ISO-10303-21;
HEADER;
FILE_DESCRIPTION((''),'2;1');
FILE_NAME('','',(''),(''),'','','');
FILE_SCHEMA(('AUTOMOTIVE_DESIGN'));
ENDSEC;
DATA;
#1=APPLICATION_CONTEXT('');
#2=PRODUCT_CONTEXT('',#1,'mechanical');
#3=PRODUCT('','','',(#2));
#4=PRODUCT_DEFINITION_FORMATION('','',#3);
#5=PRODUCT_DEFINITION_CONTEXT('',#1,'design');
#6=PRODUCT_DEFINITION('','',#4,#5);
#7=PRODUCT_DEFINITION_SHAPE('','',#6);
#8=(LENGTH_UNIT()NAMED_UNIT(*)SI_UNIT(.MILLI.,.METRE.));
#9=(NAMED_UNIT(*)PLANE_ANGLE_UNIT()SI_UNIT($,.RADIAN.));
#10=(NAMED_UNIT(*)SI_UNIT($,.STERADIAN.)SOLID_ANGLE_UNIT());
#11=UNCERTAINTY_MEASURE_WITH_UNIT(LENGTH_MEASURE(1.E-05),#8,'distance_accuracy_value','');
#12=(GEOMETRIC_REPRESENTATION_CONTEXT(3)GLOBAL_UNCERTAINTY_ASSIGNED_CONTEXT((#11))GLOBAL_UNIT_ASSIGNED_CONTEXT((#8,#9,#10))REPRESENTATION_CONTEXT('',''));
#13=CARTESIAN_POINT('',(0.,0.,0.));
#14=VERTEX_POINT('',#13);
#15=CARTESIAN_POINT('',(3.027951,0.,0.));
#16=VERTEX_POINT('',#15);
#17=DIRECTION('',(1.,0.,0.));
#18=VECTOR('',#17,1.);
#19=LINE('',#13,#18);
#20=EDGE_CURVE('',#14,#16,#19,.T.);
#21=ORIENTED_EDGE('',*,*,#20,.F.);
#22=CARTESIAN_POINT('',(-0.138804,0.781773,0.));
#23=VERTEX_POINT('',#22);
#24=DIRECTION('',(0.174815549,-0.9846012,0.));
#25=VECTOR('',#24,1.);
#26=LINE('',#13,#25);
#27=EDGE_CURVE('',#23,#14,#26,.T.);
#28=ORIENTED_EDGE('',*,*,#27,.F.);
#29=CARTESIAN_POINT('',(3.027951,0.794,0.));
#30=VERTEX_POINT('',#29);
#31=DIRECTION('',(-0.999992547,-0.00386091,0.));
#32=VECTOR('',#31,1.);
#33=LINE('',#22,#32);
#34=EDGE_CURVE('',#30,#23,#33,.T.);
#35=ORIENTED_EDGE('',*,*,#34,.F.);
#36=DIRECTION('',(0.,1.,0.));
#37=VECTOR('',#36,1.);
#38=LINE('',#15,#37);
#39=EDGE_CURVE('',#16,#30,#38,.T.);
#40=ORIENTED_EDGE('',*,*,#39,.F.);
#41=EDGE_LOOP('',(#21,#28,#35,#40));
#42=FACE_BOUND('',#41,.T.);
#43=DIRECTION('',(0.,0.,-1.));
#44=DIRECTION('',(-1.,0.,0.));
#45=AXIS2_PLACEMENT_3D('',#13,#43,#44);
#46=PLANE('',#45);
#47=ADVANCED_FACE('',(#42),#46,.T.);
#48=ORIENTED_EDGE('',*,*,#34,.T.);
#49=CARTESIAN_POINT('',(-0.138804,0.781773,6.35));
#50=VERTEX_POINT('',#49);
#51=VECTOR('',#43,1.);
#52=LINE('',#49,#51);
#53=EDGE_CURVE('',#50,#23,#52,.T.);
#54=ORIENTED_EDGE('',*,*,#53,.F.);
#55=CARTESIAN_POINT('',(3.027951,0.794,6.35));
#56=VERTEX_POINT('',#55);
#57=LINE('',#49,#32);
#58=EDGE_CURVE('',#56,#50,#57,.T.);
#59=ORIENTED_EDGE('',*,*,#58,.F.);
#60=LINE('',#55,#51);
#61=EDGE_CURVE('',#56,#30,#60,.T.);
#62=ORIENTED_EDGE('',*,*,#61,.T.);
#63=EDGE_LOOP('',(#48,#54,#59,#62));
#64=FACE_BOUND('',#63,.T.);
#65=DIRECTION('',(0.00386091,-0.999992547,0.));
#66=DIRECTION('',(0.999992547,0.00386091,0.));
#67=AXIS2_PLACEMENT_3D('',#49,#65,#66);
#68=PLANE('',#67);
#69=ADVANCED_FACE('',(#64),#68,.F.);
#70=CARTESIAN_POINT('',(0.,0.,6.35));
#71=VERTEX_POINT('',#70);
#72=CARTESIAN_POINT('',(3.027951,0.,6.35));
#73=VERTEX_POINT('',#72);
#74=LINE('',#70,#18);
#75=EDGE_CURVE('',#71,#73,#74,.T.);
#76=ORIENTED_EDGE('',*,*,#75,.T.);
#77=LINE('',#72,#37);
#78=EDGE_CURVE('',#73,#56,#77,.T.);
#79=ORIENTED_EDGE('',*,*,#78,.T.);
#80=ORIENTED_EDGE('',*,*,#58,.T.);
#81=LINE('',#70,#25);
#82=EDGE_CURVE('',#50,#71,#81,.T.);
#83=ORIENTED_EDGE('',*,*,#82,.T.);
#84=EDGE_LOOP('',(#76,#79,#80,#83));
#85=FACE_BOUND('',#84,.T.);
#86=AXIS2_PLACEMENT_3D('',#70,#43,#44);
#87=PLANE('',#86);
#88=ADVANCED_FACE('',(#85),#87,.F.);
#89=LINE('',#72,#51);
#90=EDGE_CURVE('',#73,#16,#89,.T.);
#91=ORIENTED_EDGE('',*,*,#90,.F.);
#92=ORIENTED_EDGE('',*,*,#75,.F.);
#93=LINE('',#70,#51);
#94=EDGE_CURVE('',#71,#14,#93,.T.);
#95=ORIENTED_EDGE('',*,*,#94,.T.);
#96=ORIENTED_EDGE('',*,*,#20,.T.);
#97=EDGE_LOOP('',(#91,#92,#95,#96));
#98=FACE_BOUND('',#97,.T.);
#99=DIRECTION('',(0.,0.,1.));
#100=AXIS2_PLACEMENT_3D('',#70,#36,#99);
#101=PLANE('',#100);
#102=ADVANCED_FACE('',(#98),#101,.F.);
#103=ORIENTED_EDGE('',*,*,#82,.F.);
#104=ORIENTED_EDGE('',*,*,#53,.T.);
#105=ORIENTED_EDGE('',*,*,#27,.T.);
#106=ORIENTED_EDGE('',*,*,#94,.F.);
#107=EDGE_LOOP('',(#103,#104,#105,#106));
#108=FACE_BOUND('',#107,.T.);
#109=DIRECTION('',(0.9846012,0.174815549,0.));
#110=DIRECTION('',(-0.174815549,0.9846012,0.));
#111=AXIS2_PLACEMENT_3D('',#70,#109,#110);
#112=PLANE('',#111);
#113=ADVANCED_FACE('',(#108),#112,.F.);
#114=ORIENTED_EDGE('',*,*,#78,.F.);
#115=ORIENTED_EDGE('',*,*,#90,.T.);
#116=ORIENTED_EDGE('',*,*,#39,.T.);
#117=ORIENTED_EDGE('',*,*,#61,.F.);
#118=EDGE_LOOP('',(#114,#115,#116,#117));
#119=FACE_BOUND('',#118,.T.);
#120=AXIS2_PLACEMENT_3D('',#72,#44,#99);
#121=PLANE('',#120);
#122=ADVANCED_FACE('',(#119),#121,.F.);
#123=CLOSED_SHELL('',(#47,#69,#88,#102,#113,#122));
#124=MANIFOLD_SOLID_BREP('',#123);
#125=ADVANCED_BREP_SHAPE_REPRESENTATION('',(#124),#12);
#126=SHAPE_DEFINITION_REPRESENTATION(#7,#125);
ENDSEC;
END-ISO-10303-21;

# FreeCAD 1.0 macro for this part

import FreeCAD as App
import Part
import Sketcher

V = App.Vector
Q = App.Units.Quantity

doc = App.newDocument("Part")
body = doc.addObject("PartDesign::Body", "Body")

# Sketch on XY plane
sketch1 = body.newObject("Sketcher::SketchObject", "Sketch")
sketch1.AttachmentSupport = (doc.getObject("XY_Plane"), [""])
sketch1.MapMode = "FlatFace"
sketch1.addGeometry(Part.LineSegment(V(0, 0, 0), V(3, 0, 0)), False)
sketch1.addGeometry(Part.LineSegment(V(3, 0, 0), V(3, 0.8, 0)), False)
sketch1.addGeometry(Part.LineSegment(V(3, 0.8, 0), V(-0.1, 0.8, 0)), False)
sketch1.addGeometry(Part.LineSegment(V(-0.1, 0.8, 0), V(0, 0, 0)), False)
sketch1.addConstraint(Sketcher.Constraint("Coincident", 0, 2, 1, 1))
sketch1.addConstraint(Sketcher.Constraint("Coincident", 1, 2, 2, 1))
sketch1.addConstraint(Sketcher.Constraint("Coincident", 2, 2, 3, 1))
sketch1.addConstraint(Sketcher.Constraint("Coincident", 3, 2, 0, 1))
sketch1.addConstraint(Sketcher.Constraint("Horizontal", 0))
sketch1.addConstraint(Sketcher.Constraint("Vertical", 1))
sketch1.addConstraint(Sketcher.Constraint("Coincident", 3, 2, -1, 1))
sketch1.addConstraint(Sketcher.Constraint("DistanceY", 1, 1, 1, 2, Q("0.794 mm")))
sketch1.addConstraint(Sketcher.Constraint("Distance", 3, Q("0.794 mm")))
sketch1.addConstraint(Sketcher.Constraint("DistanceX", 0, 1, 0, 2, Q("3.027951 mm")))
sketch1.addConstraint(Sketcher.Constraint("Distance", 2, Q("3.166778 mm")))
pad1 = body.newObject("PartDesign::Pad", "Pad")
pad1.Profile = sketch1
pad1.Length = Q("0.25 in")

doc.recompute()
